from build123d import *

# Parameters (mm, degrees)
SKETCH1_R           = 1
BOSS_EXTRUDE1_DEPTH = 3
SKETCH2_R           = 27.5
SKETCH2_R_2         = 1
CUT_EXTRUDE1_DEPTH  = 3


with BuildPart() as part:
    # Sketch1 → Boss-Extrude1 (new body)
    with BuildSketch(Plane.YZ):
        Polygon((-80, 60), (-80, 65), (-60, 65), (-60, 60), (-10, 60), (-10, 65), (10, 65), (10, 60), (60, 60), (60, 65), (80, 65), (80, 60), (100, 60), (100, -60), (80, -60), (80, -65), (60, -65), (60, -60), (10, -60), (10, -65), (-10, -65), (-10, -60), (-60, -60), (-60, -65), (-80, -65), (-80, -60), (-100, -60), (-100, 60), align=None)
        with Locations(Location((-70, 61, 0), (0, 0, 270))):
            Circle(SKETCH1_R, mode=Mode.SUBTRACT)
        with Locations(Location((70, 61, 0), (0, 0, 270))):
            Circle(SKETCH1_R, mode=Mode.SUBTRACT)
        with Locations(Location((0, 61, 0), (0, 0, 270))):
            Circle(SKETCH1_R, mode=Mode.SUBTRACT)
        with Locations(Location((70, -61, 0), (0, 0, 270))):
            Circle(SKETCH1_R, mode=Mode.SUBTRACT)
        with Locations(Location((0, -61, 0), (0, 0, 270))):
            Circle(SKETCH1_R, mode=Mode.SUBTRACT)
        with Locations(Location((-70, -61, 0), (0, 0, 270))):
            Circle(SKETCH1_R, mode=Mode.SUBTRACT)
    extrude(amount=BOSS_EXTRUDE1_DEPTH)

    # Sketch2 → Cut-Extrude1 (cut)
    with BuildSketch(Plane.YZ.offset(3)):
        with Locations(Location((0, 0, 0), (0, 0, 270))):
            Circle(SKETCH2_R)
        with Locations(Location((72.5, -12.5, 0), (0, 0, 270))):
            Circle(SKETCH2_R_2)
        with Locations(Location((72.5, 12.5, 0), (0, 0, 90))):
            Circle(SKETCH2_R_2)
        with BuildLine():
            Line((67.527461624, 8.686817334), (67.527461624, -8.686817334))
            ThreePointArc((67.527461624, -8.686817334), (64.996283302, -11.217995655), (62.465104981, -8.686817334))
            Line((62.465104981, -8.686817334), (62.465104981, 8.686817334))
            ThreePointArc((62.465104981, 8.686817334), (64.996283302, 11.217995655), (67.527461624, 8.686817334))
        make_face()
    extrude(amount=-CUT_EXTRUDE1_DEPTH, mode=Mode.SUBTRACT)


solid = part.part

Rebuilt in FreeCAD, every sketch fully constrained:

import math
import FreeCAD as App
import Part
import Sketcher

V = App.Vector


def add_polygon(sketch, points):
    """Adds a closed chain of lines whose ends are joined by coincident constraints."""
    first, n = sketch.GeometryCount, len(points)
    for a, b in zip(points, points[1:] + points[:1]):
        sketch.addGeometry(Part.LineSegment(App.Vector(*a, 0), App.Vector(*b, 0)), False)
    for i in range(n):
        sketch.addConstraint(Sketcher.Constraint("Coincident", first + i, 2, first + (i + 1) % n, 1))

doc = App.newDocument("Part")
body = doc.addObject("PartDesign::Body", "Body")

# Sketch on YZ plane
sketch1 = body.newObject("Sketcher::SketchObject", "Sketch")
sketch1.AttachmentSupport = (doc.getObject("YZ_Plane"), [""])
sketch1.MapMode = "FlatFace"
add_polygon(sketch1, [(-80, 65), (-80, 60), (-100, 60), (-100, -60), (-80, -60), (-80, -65), (-60, -65), (-60, -60), (-10, -60), (-10, -65), (10, -65), (10, -60), (60, -60), (60, -65), (80, -65), (80, -60), (100, -60), (100, 60), (80, 60), (80, 65), (60, 65), (60, 60), (10, 60), (10, 65), (-10, 65), (-10, 60), (-60, 60), (-60, 65)])  # lines 0-27
sketch1.addGeometry(Part.Circle(V(70, -61, 0), V(0, 0, 1), 1), False)  # 28
sketch1.addGeometry(Part.Circle(V(0, -61, 0), V(0, 0, 1), 1), False)  # 29
sketch1.addGeometry(Part.Circle(V(-70, -61, 0), V(0, 0, 1), 1), False)  # 30
sketch1.addGeometry(Part.Circle(V(70, 61, 0), V(0, 0, 1), 1), False)  # 31
sketch1.addGeometry(Part.Circle(V(0, 61, 0), V(0, 0, 1), 1), False)  # 32
sketch1.addGeometry(Part.Circle(V(-70, 61, 0), V(0, 0, 1), 1), False)  # 33
sketch1.addConstraint(Sketcher.Constraint("Vertical", 0))
sketch1.addConstraint(Sketcher.Constraint("Horizontal", 1))
sketch1.addConstraint(Sketcher.Constraint("Vertical", 2))
sketch1.addConstraint(Sketcher.Constraint("Horizontal", 3))
sketch1.addConstraint(Sketcher.Constraint("Vertical", 4))
sketch1.addConstraint(Sketcher.Constraint("Horizontal", 5))
sketch1.addConstraint(Sketcher.Constraint("Vertical", 6))
sketch1.addConstraint(Sketcher.Constraint("Horizontal", 7))
sketch1.addConstraint(Sketcher.Constraint("Vertical", 8))
sketch1.addConstraint(Sketcher.Constraint("Horizontal", 9))
sketch1.addConstraint(Sketcher.Constraint("Vertical", 10))
sketch1.addConstraint(Sketcher.Constraint("Horizontal", 11))
sketch1.addConstraint(Sketcher.Constraint("Vertical", 12))
sketch1.addConstraint(Sketcher.Constraint("Horizontal", 13))
sketch1.addConstraint(Sketcher.Constraint("Vertical", 14))
sketch1.addConstraint(Sketcher.Constraint("Horizontal", 15))
sketch1.addConstraint(Sketcher.Constraint("Vertical", 16))
sketch1.addConstraint(Sketcher.Constraint("Horizontal", 17))
sketch1.addConstraint(Sketcher.Constraint("Vertical", 18))
sketch1.addConstraint(Sketcher.Constraint("Horizontal", 19))
sketch1.addConstraint(Sketcher.Constraint("Vertical", 20))
sketch1.addConstraint(Sketcher.Constraint("Horizontal", 21))
sketch1.addConstraint(Sketcher.Constraint("Vertical", 22))
sketch1.addConstraint(Sketcher.Constraint("Horizontal", 23))
sketch1.addConstraint(Sketcher.Constraint("Vertical", 24))
sketch1.addConstraint(Sketcher.Constraint("Horizontal", 25))
sketch1.addConstraint(Sketcher.Constraint("Vertical", 26))
sketch1.addConstraint(Sketcher.Constraint("Horizontal", 27))
sketch1.addConstraint(Sketcher.Constraint("Equal", 28, 29))
sketch1.addConstraint(Sketcher.Constraint("Equal", 29, 30))
sketch1.addConstraint(Sketcher.Constraint("Equal", 30, 31))
sketch1.addConstraint(Sketcher.Constraint("Equal", 31, 32))
sketch1.addConstraint(Sketcher.Constraint("Equal", 32, 33))
sketch1.addConstraint(Sketcher.Constraint("Symmetric", 30, 3, 31, 3, -1, 1))
sketch1.addConstraint(Sketcher.Constraint("Symmetric", 29, 3, 32, 3, -1, 1))
sketch1.addConstraint(Sketcher.Constraint("Symmetric", 28, 3, 33, 3, -1, 1))
sketch1.addConstraint(Sketcher.Constraint("Symmetric", 0, 2, 14, 2, -1, 1))
sketch1.addConstraint(Sketcher.Constraint("Symmetric", 2, 2, 16, 2, -1, 1))
sketch1.addConstraint(Sketcher.Constraint("Symmetric", 4, 2, 18, 2, -1, 1))
sketch1.addConstraint(Sketcher.Constraint("Symmetric", 6, 2, 20, 2, -1, 1))
sketch1.addConstraint(Sketcher.Constraint("Symmetric", 8, 2, 22, 2, -1, 1))
sketch1.addConstraint(Sketcher.Constraint("Symmetric", 10, 2, 24, 2, -1, 1))
sketch1.addConstraint(Sketcher.Constraint("Symmetric", 12, 2, 26, 2, -1, 1))
sketch1.addConstraint(Sketcher.Constraint("Symmetric", 28, 3, 30, 3, -2))
sketch1.addConstraint(Sketcher.Constraint("Symmetric", 7, 2, 10, 2, -2))
sketch1.addConstraint(Sketcher.Constraint("Symmetric", 5, 2, 12, 2, -2))
sketch1.addConstraint(Sketcher.Constraint("Symmetric", 3, 2, 14, 2, -2))
sketch1.addConstraint(Sketcher.Constraint("PointOnObject", 29, 3, -2))
sketch1.addConstraint(Sketcher.Constraint("Horizontal", 28, 3, 29, 3))
sketch1.addConstraint(Sketcher.Constraint("Horizontal", 3, 2, 6, 2))
sketch1.addConstraint(Sketcher.Constraint("Horizontal", 5, 2, 8, 2))
sketch1.addConstraint(Sketcher.Constraint("Equal", 3, 5))
sketch1.addConstraint(Sketcher.Constraint("Equal", 5, 9))
sketch1.addConstraint(Sketcher.Constraint("Diameter", 28, 2.0))
sketch1.addConstraint(Sketcher.Constraint("DistanceX", 1, 2, 1, 1, 20.0))
sketch1.addConstraint(Sketcher.Constraint("DistanceX", 7, 1, 7, 2, 50.0))
sketch1.addConstraint(Sketcher.Constraint("DistanceY", 0, 2, 0, 1, 5.0))
sketch1.addConstraint(Sketcher.Constraint("DistanceY", 2, 2, 2, 1, 120.0))
sketch1.addConstraint(Sketcher.Constraint("DistanceX", -1, 1, 28, 3, 70.0))
sketch1.addConstraint(Sketcher.Constraint("DistanceY", 28, 3, -1, 1, 61.0))
pad1 = body.newObject("PartDesign::Pad", "Pad")
pad1.Profile = sketch1
pad1.Length = 3

# Sketch on YZ plane
sketch2 = body.newObject("Sketcher::SketchObject", "Sketch001")
sketch2.AttachmentSupport = (doc.getObject("YZ_Plane"), [""])
sketch2.MapMode = "FlatFace"
sketch2.AttachmentOffset = App.Placement(V(0, 0, 3), App.Rotation())
sketch2.addGeometry(Part.Circle(V(0, 0, 0), V(0, 0, 1), 27.5), False)
sketch2.addGeometry(Part.Circle(V(72.5, -12.5, 0), V(0, 0, 1), 1), False)
sketch2.addGeometry(Part.Circle(V(72.5, 12.5, 0), V(0, 0, 1), 1), False)
sketch2.addGeometry(Part.LineSegment(V(67.527462, -8.686817, 0), V(67.527462, 8.686817, 0)), False)
sketch2.addGeometry(Part.ArcOfCircle(Part.Circle(V(64.996283, 8.686817, 0), V(0, 0, 1), 2.531178), math.radians(0), math.radians(180)), False)
sketch2.addGeometry(Part.LineSegment(V(62.465105, 8.686817, 0), V(62.465105, -8.686817, 0)), False)
sketch2.addGeometry(Part.ArcOfCircle(Part.Circle(V(64.996283, -8.686817, 0), V(0, 0, 1), 2.531178), math.radians(-180), math.radians(0)), False)
sketch2.addConstraint(Sketcher.Constraint("Tangent", 3, 2, 4, 1))
sketch2.addConstraint(Sketcher.Constraint("Tangent", 4, 2, 5, 1))
sketch2.addConstraint(Sketcher.Constraint("Tangent", 5, 2, 6, 1))
sketch2.addConstraint(Sketcher.Constraint("Tangent", 6, 2, 3, 1))
sketch2.addConstraint(Sketcher.Constraint("Vertical", 3))
sketch2.addConstraint(Sketcher.Constraint("Vertical", 5))
sketch2.addConstraint(Sketcher.Constraint("Coincident", 0, 3, -1, 1))
sketch2.addConstraint(Sketcher.Constraint("Equal", 1, 2))
sketch2.addConstraint(Sketcher.Constraint("Symmetric", 1, 3, 2, 3, -1))
sketch2.addConstraint(Sketcher.Constraint("Diameter", 0, 55.0))
sketch2.addConstraint(Sketcher.Constraint("Diameter", 1, 2.0))
sketch2.addConstraint(Sketcher.Constraint("DistanceY", 1, 3, 2, 3, 25.0))
sketch2.addConstraint(Sketcher.Constraint("DistanceX", -1, 1, 1, 3, 72.5))
sketch2.addConstraint(Sketcher.Constraint("Radius", 4, 2.531178))
sketch2.addConstraint(Sketcher.Constraint("DistanceY", 3, 1, 3, 2, 17.373635))
sketch2.addConstraint(Sketcher.Constraint("DistanceX", -1, 1, 3, 2, 67.527462))
sketch2.addConstraint(Sketcher.Constraint("DistanceY", -1, 1, 4, 3, 8.686817))
pocket1 = body.newObject("PartDesign::Pocket", "Pocket")
pocket1.Profile = sketch2
pocket1.Length = 3

doc.recompute()
